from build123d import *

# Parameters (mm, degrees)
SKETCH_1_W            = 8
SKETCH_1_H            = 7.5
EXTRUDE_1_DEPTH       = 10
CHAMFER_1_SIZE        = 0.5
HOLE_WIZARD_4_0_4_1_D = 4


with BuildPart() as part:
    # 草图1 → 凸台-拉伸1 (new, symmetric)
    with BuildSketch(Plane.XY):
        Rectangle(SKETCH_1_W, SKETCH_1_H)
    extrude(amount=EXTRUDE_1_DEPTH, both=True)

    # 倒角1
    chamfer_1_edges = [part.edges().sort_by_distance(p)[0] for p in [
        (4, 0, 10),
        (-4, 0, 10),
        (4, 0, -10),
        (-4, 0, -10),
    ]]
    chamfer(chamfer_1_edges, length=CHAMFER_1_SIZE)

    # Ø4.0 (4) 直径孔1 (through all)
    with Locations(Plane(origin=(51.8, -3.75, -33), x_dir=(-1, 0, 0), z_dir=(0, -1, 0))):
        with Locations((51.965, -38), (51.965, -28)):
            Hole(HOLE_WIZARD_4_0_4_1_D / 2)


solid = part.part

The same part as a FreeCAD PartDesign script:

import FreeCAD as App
import Part
import Sketcher


def edges_at(feature, points):
    """Names of the edges that pass closest to the given points."""
    edges = feature.Shape.Edges
    near = lambda p: min(range(len(edges)), key=lambda i: edges[i].distToShape(Part.Vertex(*p))[0])
    return sorted({f"Edge{near(p) + 1}" for p in points})

doc = App.newDocument("Part")
body = doc.addObject("PartDesign::Body", "Body")

# Sketch on XY plane
sketch1 = doc.addObject("Sketcher::SketchObject", "Sketch")
body.addObject(sketch1)
sketch1.AttachmentSupport = (doc.XY_Plane, [""])
sketch1.MapMode = "FlatFace"
sketch1.addGeometry([
    Part.LineSegment(App.Vector(-4, 3.75, 0), App.Vector(-4, -3.75, 0)),
    Part.LineSegment(App.Vector(-4, -3.75, 0), App.Vector(4, -3.75, 0)),
    Part.LineSegment(App.Vector(4, -3.75, 0), App.Vector(4, 3.75, 0)),
    Part.LineSegment(App.Vector(4, 3.75, 0), App.Vector(-4, 3.75, 0)),
], False)
sketch1.addConstraint([
    Sketcher.Constraint("Coincident", 0, 2, 1, 1),
    Sketcher.Constraint("Coincident", 1, 2, 2, 1),
    Sketcher.Constraint("Coincident", 2, 2, 3, 1),
    Sketcher.Constraint("Coincident", 3, 2, 0, 1),
    Sketcher.Constraint("Vertical", 0),
    Sketcher.Constraint("Horizontal", 1),
    Sketcher.Constraint("Vertical", 2),
    Sketcher.Constraint("Horizontal", 3),
    Sketcher.Constraint("Symmetric", 0, 2, 2, 2, -1, 1),
    Sketcher.Constraint("DistanceX", 1, 1, 1, 2, 8.0),
    Sketcher.Constraint("DistanceY", 0, 2, 0, 1, 7.5),
])
pad1 = doc.addObject("PartDesign::Pad", "Pad")
body.addObject(pad1)
pad1.Profile = sketch1
pad1.Length = 20
pad1.Midplane = True
doc.recompute()

chamfer = doc.addObject("PartDesign::Chamfer", "Chamfer")
body.addObject(chamfer)
chamfer.Base = (pad1, edges_at(pad1, [
    (4, 0, 10),
    (-4, 0, 10),
    (4, 0, -10),
    (-4, 0, -10),
]))
chamfer.Size = 0.5

# Sketch on XZ plane
sketch2 = doc.addObject("Sketcher::SketchObject", "Sketch001")
body.addObject(sketch2)
sketch2.AttachmentSupport = (doc.XZ_Plane, [""])
sketch2.MapMode = "FlatFace"
sketch2.AttachmentOffset = App.Placement(App.Vector(0, 0, 3.75), App.Rotation())
sketch2.addGeometry([
    Part.Circle(App.Vector(-0.165, 5, 0), App.Vector(0, 0, 1), 2),
    Part.Circle(App.Vector(-0.165, -5, 0), App.Vector(0, 0, 1), 2),
], False)
sketch2.addConstraint([
    Sketcher.Constraint("Equal", 0, 1),
    Sketcher.Constraint("Symmetric", 0, 3, 1, 3, -1),
    Sketcher.Constraint("Diameter", 0, 4.0),
    Sketcher.Constraint("DistanceY", -1, 1, 0, 3, 5.0),
    Sketcher.Constraint("DistanceX", 0, 3, -1, 1, 0.165),
])
doc.recompute()
hole = doc.addObject("PartDesign::Hole", "Hole")
body.addObject(hole)
hole.Profile = sketch2
hole.ThreadType = "None"
hole.Diameter = 4
hole.DepthType = "ThroughAll"

doc.recompute()
